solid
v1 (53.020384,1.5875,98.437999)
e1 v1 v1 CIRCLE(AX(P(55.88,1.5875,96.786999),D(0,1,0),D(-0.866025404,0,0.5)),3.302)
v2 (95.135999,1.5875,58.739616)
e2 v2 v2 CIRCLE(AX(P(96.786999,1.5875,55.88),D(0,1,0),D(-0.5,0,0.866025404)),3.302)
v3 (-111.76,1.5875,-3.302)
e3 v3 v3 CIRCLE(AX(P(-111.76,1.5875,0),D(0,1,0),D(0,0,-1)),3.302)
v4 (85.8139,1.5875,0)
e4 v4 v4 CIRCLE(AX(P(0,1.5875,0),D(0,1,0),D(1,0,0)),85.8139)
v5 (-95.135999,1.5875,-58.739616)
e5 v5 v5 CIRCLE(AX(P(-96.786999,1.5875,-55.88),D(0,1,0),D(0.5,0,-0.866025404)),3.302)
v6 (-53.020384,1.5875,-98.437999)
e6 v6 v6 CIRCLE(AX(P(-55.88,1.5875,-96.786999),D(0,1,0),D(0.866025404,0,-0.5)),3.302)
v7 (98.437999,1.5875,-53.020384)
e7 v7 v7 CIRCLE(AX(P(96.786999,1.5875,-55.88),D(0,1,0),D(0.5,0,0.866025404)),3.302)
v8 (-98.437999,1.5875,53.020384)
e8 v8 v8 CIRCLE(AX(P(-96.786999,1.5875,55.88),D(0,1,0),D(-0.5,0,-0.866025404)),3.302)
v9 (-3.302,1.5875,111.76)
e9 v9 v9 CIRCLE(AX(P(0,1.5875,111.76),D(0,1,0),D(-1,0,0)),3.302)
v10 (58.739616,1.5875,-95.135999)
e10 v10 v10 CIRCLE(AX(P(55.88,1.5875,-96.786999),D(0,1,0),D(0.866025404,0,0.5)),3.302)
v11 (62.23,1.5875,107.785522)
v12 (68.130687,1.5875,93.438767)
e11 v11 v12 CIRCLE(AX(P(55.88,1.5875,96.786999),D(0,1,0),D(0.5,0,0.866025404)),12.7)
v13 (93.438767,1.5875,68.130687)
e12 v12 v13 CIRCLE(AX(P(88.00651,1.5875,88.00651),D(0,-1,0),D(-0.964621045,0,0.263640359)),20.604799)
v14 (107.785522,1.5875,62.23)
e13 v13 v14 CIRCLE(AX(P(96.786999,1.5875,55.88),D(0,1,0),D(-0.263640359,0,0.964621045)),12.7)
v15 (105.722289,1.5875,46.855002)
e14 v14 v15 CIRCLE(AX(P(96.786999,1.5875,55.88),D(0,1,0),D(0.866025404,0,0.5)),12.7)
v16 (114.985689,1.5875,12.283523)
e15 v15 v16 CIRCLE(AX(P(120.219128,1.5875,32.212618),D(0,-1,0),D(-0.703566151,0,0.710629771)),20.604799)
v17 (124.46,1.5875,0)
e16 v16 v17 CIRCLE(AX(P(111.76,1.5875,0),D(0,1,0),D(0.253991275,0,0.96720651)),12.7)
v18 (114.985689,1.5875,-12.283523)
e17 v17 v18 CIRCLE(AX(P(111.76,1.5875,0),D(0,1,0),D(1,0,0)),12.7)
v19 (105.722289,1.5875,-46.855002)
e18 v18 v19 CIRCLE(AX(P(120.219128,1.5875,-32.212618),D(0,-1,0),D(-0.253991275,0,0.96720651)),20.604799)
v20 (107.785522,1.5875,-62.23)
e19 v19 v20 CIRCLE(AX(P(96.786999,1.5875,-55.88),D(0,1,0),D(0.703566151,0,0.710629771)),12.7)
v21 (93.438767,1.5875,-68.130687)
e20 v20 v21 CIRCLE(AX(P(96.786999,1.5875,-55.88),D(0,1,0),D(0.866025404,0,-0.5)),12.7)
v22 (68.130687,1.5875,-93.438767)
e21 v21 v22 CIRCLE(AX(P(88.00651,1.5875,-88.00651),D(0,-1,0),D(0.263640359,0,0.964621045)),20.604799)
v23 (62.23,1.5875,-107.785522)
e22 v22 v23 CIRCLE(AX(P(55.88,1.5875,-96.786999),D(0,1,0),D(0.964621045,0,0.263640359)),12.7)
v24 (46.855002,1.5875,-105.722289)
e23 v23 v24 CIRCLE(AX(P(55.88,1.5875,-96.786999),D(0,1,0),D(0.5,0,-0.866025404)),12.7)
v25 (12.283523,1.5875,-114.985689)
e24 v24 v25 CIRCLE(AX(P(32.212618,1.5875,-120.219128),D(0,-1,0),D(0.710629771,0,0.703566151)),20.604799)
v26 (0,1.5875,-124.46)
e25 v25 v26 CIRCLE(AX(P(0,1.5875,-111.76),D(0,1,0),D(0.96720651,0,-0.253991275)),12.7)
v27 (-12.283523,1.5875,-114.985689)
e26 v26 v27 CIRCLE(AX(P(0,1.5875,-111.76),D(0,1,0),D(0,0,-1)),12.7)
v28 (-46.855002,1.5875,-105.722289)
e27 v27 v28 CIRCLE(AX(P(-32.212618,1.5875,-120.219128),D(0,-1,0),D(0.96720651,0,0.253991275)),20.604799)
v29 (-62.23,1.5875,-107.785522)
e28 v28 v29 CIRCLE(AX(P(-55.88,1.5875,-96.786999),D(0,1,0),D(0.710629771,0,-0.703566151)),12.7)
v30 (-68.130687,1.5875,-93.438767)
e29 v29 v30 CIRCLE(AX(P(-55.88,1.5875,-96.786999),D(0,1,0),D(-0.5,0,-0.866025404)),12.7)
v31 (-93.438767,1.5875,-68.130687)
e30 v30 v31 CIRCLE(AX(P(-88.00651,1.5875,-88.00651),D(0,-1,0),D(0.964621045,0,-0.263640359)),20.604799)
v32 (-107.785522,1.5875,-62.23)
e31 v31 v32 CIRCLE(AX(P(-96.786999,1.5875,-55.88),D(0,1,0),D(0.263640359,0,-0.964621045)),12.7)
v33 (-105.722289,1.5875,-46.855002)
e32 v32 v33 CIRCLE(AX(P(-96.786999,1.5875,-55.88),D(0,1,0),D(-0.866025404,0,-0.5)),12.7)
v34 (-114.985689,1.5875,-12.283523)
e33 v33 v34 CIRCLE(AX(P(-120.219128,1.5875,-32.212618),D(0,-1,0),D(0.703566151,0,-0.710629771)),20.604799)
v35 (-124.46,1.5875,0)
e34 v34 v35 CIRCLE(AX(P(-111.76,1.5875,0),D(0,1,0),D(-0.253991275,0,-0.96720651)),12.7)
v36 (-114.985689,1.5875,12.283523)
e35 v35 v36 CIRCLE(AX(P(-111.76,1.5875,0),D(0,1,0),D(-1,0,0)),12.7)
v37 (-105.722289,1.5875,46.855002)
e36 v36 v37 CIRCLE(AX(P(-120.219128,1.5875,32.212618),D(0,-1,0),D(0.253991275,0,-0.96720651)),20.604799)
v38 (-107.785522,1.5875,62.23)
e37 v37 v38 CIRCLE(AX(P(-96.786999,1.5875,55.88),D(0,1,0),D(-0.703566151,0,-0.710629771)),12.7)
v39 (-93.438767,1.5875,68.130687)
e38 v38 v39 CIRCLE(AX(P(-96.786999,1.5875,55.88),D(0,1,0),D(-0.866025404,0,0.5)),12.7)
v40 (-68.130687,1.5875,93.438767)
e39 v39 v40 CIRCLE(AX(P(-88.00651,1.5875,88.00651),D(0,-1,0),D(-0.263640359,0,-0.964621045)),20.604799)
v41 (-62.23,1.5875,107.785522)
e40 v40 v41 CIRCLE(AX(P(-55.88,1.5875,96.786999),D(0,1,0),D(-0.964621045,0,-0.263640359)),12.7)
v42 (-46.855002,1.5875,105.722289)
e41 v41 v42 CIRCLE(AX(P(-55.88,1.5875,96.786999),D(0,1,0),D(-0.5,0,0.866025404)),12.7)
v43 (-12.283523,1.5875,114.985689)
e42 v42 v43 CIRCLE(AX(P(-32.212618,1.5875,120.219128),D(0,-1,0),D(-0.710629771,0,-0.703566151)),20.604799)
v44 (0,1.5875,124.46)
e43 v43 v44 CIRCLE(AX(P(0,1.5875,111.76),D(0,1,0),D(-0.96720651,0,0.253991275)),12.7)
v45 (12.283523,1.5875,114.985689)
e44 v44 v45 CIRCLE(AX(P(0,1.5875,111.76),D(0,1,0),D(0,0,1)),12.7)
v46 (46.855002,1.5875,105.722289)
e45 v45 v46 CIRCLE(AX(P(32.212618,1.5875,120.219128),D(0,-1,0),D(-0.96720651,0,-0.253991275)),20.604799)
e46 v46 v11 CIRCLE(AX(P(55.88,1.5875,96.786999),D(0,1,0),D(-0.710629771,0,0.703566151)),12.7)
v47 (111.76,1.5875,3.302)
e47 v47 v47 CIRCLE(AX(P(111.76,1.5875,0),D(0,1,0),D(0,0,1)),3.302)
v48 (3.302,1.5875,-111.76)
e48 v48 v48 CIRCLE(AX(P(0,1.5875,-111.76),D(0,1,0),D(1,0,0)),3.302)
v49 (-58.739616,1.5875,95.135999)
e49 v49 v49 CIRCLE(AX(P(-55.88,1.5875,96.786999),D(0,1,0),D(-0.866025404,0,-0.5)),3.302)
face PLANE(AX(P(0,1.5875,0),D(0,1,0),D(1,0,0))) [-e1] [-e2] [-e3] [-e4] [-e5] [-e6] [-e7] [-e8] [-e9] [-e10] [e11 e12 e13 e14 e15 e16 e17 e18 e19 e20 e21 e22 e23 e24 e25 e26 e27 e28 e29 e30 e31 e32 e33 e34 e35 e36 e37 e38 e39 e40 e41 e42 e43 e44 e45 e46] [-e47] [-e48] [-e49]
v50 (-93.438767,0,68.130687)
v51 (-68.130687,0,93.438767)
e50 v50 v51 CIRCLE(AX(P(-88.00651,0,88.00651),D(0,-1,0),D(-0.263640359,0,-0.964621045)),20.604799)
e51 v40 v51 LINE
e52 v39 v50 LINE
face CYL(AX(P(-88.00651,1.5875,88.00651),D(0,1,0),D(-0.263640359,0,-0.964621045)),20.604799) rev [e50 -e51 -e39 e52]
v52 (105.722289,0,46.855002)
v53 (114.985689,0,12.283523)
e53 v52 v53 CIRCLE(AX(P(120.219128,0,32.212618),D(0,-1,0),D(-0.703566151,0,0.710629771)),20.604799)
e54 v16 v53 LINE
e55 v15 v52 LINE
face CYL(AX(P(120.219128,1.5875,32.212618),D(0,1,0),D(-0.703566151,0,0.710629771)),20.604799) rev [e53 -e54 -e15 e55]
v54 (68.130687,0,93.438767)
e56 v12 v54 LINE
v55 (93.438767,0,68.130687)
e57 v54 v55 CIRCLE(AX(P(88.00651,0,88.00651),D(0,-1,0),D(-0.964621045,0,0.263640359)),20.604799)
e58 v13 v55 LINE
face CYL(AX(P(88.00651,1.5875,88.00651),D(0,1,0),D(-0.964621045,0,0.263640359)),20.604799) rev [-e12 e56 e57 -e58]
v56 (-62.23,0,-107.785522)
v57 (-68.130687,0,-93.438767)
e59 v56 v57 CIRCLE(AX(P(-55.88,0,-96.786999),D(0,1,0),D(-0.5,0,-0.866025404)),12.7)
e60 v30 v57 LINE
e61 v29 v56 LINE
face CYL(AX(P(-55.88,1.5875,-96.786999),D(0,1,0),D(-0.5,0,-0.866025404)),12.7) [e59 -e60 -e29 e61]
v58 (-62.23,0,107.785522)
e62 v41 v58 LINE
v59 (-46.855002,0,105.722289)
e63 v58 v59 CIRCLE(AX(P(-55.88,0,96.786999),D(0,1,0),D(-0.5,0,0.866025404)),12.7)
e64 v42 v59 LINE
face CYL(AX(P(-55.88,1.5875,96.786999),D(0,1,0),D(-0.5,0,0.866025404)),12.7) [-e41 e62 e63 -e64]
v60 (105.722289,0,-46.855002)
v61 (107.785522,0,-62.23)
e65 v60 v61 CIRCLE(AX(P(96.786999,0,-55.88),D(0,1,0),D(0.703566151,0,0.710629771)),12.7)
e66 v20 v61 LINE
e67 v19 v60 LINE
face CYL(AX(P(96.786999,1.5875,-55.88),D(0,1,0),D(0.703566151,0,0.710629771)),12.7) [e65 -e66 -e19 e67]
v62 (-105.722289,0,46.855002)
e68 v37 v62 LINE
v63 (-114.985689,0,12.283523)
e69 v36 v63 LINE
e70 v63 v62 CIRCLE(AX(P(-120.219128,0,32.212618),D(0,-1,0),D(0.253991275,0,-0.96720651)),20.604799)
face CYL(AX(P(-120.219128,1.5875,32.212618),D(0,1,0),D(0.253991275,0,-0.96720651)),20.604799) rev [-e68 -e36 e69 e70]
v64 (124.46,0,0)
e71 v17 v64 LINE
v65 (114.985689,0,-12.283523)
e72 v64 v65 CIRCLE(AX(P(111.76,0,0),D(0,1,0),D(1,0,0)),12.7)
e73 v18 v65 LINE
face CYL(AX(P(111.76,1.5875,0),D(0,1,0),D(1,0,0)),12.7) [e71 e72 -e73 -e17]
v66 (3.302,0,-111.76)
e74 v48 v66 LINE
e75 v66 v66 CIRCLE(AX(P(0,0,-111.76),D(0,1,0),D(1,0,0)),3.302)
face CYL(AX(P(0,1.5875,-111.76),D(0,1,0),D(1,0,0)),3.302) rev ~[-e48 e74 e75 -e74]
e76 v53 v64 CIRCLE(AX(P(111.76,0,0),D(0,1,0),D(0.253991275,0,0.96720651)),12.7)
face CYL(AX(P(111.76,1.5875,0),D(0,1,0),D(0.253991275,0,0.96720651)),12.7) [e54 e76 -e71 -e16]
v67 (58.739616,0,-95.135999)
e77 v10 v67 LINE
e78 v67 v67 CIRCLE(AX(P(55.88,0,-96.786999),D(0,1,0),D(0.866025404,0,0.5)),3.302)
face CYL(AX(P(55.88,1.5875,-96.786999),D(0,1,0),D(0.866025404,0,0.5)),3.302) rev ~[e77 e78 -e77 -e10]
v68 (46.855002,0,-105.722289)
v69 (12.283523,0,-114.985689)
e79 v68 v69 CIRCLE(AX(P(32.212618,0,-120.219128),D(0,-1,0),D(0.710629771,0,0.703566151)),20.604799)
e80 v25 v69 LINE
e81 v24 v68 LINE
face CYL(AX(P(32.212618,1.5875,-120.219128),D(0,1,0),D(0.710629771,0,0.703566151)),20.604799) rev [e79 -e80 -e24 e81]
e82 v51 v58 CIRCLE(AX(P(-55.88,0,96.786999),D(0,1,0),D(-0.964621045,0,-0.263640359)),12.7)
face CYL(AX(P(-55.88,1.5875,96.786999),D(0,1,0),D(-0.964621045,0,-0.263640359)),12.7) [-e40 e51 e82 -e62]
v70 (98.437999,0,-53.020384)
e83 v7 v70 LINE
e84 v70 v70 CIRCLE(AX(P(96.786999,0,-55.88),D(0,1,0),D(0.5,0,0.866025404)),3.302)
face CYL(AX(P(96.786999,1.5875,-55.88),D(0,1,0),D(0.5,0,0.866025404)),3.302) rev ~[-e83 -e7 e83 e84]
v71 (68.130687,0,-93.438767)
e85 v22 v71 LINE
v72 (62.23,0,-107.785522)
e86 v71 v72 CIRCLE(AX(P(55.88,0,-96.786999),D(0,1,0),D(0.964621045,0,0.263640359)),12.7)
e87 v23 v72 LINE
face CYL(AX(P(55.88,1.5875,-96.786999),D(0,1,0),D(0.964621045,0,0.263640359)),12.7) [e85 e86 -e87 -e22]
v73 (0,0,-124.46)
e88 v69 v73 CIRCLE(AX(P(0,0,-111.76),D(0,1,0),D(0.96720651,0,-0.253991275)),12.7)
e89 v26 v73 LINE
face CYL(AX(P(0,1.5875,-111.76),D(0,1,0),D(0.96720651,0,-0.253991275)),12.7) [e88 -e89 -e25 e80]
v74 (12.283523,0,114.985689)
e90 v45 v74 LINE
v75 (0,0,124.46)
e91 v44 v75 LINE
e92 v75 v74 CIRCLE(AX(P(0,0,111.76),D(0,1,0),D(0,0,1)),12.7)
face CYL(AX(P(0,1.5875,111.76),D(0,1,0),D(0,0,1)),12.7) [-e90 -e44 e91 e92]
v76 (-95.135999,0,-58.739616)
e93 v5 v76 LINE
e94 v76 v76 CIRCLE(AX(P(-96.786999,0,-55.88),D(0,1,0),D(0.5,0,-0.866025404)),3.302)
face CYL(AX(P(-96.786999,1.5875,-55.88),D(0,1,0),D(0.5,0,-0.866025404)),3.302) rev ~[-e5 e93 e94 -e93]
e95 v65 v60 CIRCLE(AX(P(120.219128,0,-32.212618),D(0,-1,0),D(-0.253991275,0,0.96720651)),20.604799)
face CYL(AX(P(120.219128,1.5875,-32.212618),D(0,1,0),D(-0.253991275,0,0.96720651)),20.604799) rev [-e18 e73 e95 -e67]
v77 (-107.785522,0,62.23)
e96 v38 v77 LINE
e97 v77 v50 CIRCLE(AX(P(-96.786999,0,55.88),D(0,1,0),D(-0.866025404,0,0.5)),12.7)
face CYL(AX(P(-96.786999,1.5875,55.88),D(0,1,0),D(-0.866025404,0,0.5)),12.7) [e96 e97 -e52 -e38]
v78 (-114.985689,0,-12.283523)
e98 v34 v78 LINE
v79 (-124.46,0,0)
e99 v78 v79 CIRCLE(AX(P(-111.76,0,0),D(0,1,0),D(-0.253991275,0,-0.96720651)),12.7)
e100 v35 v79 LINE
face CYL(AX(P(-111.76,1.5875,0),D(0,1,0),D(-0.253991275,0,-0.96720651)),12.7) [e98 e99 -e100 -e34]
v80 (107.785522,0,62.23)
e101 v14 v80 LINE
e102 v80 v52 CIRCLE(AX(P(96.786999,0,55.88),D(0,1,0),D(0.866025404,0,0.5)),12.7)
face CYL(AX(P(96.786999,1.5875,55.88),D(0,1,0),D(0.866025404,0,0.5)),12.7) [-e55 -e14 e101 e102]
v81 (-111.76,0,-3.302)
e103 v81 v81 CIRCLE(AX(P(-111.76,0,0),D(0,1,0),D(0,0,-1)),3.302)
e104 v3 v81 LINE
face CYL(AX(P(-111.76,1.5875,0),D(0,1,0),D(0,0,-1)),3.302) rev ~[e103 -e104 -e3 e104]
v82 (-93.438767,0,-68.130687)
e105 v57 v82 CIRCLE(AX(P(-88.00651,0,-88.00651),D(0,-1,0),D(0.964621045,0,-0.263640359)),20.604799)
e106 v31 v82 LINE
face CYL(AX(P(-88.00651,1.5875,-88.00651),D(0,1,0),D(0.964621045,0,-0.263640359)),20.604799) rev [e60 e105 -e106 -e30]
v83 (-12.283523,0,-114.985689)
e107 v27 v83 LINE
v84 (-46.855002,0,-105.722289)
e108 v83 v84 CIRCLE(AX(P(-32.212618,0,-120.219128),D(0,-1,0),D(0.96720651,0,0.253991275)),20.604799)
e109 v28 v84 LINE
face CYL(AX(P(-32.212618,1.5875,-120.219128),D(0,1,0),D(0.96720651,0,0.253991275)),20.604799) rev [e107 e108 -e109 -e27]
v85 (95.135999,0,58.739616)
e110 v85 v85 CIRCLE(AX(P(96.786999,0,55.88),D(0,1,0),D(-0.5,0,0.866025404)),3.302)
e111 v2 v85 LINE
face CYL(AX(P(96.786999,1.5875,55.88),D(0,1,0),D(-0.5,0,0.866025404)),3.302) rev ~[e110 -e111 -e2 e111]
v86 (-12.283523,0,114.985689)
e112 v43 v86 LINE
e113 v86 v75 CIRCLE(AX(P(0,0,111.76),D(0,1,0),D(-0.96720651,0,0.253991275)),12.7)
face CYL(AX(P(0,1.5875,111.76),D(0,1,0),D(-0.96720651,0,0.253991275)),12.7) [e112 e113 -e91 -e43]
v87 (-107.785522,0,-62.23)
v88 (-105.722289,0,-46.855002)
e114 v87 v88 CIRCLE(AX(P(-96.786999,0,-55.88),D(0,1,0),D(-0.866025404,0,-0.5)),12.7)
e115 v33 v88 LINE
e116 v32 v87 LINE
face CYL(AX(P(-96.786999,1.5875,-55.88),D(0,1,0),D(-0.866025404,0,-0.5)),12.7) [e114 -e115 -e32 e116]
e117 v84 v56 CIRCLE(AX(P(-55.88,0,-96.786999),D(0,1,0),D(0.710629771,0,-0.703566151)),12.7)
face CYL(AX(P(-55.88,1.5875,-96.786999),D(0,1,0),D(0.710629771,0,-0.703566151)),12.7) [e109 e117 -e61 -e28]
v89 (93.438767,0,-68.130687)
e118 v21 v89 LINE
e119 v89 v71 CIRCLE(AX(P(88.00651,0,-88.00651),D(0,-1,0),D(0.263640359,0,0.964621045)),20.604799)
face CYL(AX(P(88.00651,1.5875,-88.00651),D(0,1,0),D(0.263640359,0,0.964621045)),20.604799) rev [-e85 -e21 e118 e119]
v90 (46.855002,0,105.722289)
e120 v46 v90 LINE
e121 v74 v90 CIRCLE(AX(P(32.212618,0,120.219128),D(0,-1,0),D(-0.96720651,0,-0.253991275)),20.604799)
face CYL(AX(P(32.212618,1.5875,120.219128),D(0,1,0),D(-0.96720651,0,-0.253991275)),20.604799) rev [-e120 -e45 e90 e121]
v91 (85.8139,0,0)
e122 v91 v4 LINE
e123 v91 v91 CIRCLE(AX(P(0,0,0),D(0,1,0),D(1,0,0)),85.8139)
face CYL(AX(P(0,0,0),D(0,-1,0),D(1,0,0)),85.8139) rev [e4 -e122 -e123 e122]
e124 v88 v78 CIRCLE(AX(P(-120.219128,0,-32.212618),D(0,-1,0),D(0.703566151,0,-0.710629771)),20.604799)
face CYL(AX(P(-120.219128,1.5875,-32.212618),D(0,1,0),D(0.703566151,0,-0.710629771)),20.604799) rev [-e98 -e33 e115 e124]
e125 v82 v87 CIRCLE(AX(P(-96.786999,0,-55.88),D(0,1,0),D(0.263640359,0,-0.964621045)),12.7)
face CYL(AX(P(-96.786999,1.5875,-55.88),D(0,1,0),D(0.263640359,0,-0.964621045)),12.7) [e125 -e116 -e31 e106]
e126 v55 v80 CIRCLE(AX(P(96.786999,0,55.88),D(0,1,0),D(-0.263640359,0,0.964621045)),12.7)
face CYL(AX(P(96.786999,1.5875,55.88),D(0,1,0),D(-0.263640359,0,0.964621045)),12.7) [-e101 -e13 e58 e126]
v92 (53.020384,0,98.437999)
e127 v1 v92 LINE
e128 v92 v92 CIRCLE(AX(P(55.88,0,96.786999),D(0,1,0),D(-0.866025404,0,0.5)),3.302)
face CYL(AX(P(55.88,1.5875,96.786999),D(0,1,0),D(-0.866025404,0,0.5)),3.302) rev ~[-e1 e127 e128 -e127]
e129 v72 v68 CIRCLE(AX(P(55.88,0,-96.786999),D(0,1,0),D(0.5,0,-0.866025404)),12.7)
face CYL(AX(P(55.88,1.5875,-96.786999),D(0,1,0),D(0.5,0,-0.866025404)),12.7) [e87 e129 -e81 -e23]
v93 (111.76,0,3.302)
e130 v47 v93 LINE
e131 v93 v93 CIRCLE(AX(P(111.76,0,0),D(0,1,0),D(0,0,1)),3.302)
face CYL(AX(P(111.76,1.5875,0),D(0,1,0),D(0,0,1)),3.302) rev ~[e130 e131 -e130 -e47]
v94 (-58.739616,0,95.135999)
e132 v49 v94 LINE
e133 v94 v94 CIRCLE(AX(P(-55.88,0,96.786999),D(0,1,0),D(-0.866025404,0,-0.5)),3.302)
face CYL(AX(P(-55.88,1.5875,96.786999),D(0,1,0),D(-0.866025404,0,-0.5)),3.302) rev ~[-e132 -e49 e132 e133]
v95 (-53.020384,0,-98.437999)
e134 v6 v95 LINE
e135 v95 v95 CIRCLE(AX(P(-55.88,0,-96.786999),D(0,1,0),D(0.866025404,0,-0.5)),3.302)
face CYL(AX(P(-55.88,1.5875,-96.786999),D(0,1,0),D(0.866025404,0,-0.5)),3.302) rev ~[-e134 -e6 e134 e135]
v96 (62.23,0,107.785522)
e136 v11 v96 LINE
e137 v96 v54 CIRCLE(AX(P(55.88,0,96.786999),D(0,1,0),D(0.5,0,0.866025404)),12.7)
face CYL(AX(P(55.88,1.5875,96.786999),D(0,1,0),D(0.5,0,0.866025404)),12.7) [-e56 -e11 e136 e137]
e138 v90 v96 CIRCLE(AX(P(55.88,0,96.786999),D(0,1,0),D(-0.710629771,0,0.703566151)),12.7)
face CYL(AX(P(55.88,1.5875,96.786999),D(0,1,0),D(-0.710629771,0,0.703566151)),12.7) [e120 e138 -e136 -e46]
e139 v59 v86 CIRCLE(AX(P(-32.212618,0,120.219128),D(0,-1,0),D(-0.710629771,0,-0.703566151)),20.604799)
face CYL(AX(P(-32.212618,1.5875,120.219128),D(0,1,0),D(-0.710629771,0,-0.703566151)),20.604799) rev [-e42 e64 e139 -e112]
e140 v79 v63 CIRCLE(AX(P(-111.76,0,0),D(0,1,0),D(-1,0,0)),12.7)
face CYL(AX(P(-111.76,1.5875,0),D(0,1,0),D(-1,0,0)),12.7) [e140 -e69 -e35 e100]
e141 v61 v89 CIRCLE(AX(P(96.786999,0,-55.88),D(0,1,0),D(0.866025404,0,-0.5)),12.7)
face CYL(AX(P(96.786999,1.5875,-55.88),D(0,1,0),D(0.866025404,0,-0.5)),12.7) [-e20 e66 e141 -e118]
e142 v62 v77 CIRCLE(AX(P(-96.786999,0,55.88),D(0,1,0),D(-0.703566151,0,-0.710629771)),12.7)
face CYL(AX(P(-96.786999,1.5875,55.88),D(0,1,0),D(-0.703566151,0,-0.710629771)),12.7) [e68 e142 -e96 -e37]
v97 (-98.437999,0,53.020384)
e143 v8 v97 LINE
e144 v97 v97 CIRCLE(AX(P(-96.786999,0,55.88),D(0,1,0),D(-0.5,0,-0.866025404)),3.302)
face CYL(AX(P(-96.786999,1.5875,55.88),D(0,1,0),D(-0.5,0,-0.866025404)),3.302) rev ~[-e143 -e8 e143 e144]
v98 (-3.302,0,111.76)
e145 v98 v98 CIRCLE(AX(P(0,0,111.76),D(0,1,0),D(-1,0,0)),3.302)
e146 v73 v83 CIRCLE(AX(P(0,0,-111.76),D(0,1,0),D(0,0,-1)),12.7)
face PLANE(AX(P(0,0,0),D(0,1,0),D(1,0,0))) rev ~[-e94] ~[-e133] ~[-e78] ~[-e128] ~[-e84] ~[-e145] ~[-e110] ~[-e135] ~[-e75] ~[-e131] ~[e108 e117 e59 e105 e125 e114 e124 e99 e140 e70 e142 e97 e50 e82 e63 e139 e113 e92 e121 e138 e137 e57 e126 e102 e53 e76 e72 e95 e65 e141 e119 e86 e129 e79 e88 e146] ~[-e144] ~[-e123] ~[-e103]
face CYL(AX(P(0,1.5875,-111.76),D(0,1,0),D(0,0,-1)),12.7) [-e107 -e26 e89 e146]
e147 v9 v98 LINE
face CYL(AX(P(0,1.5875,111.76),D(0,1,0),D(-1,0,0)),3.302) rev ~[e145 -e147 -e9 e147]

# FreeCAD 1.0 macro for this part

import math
import FreeCAD as App
import Part
import Sketcher
from FreeCAD import Vector
Q = App.Units.Quantity

doc = App.newDocument("Part")
body = doc.addObject("PartDesign::Body", "Body")

# Sketch on XZ plane
sketch1 = body.newObject("Sketcher::SketchObject", "Sketch")
sketch1.AttachmentSupport = (doc.getObject("XZ_Plane"), [""])
sketch1.MapMode = "FlatFace"
sketch1.addGeometry([
    Part.Circle(Vector(0, 0, 0), Vector(0, 0, 1), 124),
    Part.Circle(Vector(0, 0, 0), Vector(0, 0, 1), 86),
], False)
sketch1.addConstraint([
    Sketcher.Constraint("Coincident", 0, 3, -1, 1),
    Sketcher.Constraint("Coincident", 1, 3, -1, 1),
    Sketcher.Constraint("Diameter", 0, Q("9.8 in")),
    Sketcher.Constraint("Diameter", 1, Q("6.757 in")),
])
pad1 = body.newObject("PartDesign::Pad", "Pad")
pad1.Profile = sketch1
pad1.Length = Q("0.0625 in")
pad1.Reversed = True

# Sketch on XZ plane
sketch2 = body.newObject("Sketcher::SketchObject", "Sketch001")
sketch2.AttachmentSupport = (doc.getObject("XZ_Plane"), [""])
sketch2.MapMode = "FlatFace"
sketch2.AttachmentOffset = App.Placement(Vector(0, 0, -0.0625 * 25.4), App.Rotation())
sketch2.addGeometry(Part.Circle(Vector(0, -111.8, 0), Vector(0, 0, 1), 3.3), False)
sketch2.addConstraint([
    Sketcher.Constraint("PointOnObject", 0, 3, -2),
    Sketcher.Constraint("Diameter", 0, Q("0.26 in")),
    Sketcher.Constraint("DistanceY", 0, 3, -1, 1, Q("4.4 in")),
])
pocket1 = body.newObject("PartDesign::Pocket", "Pocket")
pocket1.Profile = sketch2
pocket1.Length = Q("0.0625 in")
pocket1.Reversed = True
doc.recompute()

polarpattern = body.newObject("PartDesign::PolarPattern", "PolarPattern")
polarpattern.Originals = [pocket1]
polarpattern.Axis = (doc.getObject("Y_Axis"), [""])
polarpattern.Angle = 360
polarpattern.Occurrences = 12
body.Tip = polarpattern

# Sketch on XZ plane
sketch3 = body.newObject("Sketcher::SketchObject", "Sketch002")
sketch3.AttachmentSupport = (doc.getObject("XZ_Plane"), [""])
sketch3.MapMode = "FlatFace"
sketch3.AttachmentOffset = App.Placement(Vector(0, 0, -0.0625 * 25.4), App.Rotation())
sketch3.addGeometry([
    Part.LineSegment(Vector(0, -155, 0), Vector(0, -124, 0)),  # 0
    Part.ArcOfCircle(Part.Circle(Vector(0, -112, 0), Vector(0, 0, 1), 13), math.radians(-90), math.radians(-15)),  # 1
    Part.ArcOfCircle(Part.Circle(Vector(32, -120, 0), Vector(0, 0, 1), 21), math.radians(45), math.radians(165)),  # 2
    Part.ArcOfCircle(Part.Circle(Vector(56, -97, 0), Vector(0, 0, 1), 13), math.radians(-135), math.radians(-60)),  # 3
    Part.LineSegment(Vector(62, -108, 0), Vector(78, -134, 0)),  # 4
    Part.LineSegment(Vector(78, -134, 0), Vector(0, -155, 0)),  # 5
], False)
sketch3.addConstraint([
    Sketcher.Constraint("Coincident", 0, 2, 1, 1),
    Sketcher.Constraint("Tangent", 1, 2, 2, 2),
    Sketcher.Constraint("Tangent", 2, 1, 3, 1),
    Sketcher.Constraint("Coincident", 3, 2, 4, 1),
    Sketcher.Constraint("Coincident", 4, 2, 5, 1),
    Sketcher.Constraint("Coincident", 5, 2, 0, 1),
    Sketcher.Constraint("Vertical", 0),
    Sketcher.Constraint("Equal", 1, 3),
    Sketcher.Constraint("PointOnObject", 1, 3, -2),
    Sketcher.Constraint("PointOnObject", 0, 2, -2),
    Sketcher.Constraint("Radius", 1, Q("0.5 in")),
    Sketcher.Constraint("Angle", 4, Q("-60 deg")),
    Sketcher.Constraint("Angle", 5, Q("-165 deg")),
    Sketcher.Constraint("DistanceY", 1, 3, -1, 1, Q("4.4 in")),
    Sketcher.Constraint("DistanceX", -1, 1, 3, 3, Q("2.2 in")),
    Sketcher.Constraint("DistanceX", -1, 1, 3, 2, Q("2.45 in")),
    Sketcher.Constraint("Radius", 2, 20.604799),
    Sketcher.Constraint("DistanceY", 0, 1, 0, 2, 30.686488),
    Sketcher.Constraint("DistanceY", 3, 3, -1, 1, 96.786999),
])
pocket2 = body.newObject("PartDesign::Pocket", "Pocket001")
pocket2.Profile = sketch3
pocket2.Length = Q("0.0625 in")
pocket2.Reversed = True
doc.recompute()

polarpattern2 = body.newObject("PartDesign::PolarPattern", "PolarPattern001")
polarpattern2.Originals = [pocket2]
polarpattern2.Axis = (doc.getObject("Y_Axis"), [""])
polarpattern2.Angle = 360
polarpattern2.Occurrences = 12
body.Tip = polarpattern2

doc.recompute()
